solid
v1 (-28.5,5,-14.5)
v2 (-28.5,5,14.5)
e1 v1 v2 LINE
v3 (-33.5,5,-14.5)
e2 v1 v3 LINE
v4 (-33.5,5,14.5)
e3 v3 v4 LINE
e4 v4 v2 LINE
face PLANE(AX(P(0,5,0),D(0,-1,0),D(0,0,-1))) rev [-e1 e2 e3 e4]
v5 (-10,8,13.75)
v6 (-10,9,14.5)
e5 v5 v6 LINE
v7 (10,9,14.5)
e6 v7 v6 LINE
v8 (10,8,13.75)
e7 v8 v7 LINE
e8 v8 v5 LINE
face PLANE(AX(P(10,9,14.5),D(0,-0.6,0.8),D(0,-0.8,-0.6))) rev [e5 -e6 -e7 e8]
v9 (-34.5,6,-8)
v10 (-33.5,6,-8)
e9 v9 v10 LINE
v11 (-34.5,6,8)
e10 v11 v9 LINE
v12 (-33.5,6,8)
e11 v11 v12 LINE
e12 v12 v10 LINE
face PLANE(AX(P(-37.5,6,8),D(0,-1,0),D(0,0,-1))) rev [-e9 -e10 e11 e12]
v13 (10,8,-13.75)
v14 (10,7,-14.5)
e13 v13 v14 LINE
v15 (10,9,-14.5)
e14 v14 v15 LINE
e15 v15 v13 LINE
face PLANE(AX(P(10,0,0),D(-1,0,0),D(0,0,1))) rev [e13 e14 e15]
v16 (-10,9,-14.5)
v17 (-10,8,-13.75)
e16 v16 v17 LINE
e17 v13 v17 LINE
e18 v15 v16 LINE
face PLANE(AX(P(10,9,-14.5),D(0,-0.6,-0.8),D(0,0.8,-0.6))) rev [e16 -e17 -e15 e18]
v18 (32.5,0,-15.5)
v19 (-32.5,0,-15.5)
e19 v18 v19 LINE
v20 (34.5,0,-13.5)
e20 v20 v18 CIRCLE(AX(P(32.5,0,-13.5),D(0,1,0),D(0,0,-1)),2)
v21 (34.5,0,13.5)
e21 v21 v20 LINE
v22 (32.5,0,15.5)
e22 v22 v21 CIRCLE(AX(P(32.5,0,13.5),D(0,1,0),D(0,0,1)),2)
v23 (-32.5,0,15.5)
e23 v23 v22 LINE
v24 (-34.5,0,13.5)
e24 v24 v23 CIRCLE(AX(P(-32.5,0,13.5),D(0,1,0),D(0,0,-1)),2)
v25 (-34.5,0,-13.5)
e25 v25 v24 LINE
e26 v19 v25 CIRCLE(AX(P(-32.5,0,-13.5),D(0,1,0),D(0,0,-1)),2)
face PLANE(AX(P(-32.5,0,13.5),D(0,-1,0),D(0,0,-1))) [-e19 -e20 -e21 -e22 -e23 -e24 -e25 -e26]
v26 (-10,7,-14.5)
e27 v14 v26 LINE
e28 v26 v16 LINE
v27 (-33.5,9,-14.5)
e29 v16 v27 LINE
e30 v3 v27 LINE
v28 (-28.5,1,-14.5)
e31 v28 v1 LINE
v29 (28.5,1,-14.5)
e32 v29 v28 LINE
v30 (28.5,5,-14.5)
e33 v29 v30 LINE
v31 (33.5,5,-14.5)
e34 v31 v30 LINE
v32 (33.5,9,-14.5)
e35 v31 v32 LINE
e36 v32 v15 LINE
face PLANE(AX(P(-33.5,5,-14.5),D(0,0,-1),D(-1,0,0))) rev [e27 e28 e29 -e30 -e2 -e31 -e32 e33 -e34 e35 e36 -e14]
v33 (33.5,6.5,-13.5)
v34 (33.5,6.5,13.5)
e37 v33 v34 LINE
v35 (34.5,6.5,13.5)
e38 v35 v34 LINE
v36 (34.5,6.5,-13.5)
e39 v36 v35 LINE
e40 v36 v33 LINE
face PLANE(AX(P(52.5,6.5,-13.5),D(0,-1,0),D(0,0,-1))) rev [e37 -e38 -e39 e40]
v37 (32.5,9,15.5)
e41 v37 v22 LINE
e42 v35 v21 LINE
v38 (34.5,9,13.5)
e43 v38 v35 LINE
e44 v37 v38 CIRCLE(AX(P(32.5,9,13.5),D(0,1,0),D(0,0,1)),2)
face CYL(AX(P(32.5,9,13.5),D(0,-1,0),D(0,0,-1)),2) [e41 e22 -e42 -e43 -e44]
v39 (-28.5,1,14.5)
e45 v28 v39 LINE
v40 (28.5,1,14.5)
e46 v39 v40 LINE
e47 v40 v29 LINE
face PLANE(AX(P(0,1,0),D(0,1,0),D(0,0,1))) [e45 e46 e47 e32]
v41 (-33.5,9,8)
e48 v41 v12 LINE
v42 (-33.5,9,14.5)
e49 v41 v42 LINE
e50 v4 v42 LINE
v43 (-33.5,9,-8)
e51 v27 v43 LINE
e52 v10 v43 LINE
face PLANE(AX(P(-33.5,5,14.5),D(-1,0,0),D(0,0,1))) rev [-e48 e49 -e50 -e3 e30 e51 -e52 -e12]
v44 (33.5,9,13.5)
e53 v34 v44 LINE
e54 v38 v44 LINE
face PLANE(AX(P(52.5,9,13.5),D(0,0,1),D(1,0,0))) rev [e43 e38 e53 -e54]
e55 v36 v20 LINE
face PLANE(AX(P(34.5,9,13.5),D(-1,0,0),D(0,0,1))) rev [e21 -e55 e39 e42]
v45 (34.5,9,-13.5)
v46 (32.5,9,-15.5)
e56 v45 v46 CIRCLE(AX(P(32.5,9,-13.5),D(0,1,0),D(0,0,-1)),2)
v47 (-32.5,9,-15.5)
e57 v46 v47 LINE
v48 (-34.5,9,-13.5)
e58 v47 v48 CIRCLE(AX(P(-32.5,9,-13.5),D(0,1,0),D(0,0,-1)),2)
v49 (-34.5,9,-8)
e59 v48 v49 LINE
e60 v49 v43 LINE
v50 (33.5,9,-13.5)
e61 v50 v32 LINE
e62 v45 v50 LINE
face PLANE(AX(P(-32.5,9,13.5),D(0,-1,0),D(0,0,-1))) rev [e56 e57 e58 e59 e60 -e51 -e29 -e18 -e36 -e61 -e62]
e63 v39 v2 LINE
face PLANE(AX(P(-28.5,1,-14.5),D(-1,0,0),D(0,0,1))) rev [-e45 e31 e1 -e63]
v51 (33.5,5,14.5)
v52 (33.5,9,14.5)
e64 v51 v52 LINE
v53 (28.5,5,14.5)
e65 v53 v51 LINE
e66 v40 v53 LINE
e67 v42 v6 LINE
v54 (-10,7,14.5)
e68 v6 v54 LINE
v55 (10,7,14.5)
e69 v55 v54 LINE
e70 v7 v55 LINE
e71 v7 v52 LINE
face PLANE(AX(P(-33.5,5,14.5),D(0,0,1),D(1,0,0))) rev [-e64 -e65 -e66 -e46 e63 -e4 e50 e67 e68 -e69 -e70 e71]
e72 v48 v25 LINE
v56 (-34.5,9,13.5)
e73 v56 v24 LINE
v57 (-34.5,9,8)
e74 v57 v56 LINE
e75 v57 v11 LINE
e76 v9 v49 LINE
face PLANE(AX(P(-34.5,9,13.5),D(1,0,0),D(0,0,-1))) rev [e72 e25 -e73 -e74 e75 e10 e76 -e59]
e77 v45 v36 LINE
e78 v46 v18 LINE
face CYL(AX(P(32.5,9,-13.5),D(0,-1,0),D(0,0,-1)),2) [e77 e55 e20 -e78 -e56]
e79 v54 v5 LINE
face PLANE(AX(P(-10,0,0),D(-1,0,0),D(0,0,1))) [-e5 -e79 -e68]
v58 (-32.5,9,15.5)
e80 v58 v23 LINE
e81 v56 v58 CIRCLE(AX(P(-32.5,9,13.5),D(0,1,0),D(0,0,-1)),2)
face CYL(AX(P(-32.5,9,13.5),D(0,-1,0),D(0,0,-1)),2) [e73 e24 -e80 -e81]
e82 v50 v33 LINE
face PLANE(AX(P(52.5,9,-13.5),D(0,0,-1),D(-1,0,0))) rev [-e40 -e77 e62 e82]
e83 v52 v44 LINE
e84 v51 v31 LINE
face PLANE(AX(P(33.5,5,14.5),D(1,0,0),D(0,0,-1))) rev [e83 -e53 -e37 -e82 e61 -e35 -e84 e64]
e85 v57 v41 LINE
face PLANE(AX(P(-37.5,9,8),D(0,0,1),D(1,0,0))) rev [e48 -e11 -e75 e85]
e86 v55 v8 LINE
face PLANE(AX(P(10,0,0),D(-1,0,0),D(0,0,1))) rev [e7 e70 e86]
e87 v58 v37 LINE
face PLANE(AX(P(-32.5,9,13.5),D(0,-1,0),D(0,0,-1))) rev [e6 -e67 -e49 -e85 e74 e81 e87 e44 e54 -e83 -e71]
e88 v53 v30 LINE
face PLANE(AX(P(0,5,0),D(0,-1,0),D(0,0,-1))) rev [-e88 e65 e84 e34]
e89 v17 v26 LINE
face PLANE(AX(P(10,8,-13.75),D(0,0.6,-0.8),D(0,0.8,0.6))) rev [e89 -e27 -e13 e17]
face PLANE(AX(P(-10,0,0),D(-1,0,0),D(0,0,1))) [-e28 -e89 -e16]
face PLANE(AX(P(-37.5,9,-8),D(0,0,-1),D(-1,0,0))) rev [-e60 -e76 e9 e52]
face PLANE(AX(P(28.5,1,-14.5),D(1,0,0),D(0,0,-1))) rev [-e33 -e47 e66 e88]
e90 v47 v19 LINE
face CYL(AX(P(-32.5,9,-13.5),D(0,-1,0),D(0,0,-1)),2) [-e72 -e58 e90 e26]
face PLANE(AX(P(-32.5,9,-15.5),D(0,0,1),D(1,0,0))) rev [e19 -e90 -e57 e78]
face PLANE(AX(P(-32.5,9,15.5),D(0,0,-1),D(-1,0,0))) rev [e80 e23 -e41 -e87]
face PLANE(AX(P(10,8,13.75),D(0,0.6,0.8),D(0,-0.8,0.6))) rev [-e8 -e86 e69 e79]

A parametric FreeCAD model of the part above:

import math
import FreeCAD as App
import Part
import Sketcher
from FreeCAD import Vector

doc = App.newDocument("Part")
body = doc.addObject("PartDesign::Body", "Body")

# Sketch on XZ plane
sketch1 = body.newObject("Sketcher::SketchObject", "Sketch")
sketch1.AttachmentSupport = (doc.getObject("XZ_Plane"), [""])
sketch1.MapMode = "FlatFace"
sketch1.addGeometry(Part.LineSegment(Vector(-32.5, 15.5, 0), Vector(32.5, 15.5, 0)), False)
sketch1.addGeometry(Part.ArcOfCircle(Part.Circle(Vector(32.5, 13.5, 0), Vector(0, 0, 1), 2), math.radians(0), math.radians(90)), False)
sketch1.addGeometry(Part.LineSegment(Vector(34.5, 13.5, 0), Vector(34.5, -13.5, 0)), False)
sketch1.addGeometry(Part.ArcOfCircle(Part.Circle(Vector(32.5, -13.5, 0), Vector(0, 0, 1), 2), math.radians(-90), math.radians(0)), False)
sketch1.addGeometry(Part.LineSegment(Vector(32.5, -15.5, 0), Vector(-32.5, -15.5, 0)), False)
sketch1.addGeometry(Part.ArcOfCircle(Part.Circle(Vector(-32.5, -13.5, 0), Vector(0, 0, 1), 2), math.radians(-180), math.radians(-90)), False)
sketch1.addGeometry(Part.LineSegment(Vector(-34.5, -13.5, 0), Vector(-34.5, 13.5, 0)), False)
sketch1.addGeometry(Part.ArcOfCircle(Part.Circle(Vector(-32.5, 13.5, 0), Vector(0, 0, 1), 2), math.radians(90), math.radians(180)), False)
sketch1.addConstraint(Sketcher.Constraint("Tangent", 0, 2, 1, 2))
sketch1.addConstraint(Sketcher.Constraint("Tangent", 1, 1, 2, 1))
sketch1.addConstraint(Sketcher.Constraint("Tangent", 2, 2, 3, 2))
sketch1.addConstraint(Sketcher.Constraint("Tangent", 3, 1, 4, 1))
sketch1.addConstraint(Sketcher.Constraint("Tangent", 4, 2, 5, 2))
sketch1.addConstraint(Sketcher.Constraint("Tangent", 5, 1, 6, 1))
sketch1.addConstraint(Sketcher.Constraint("Tangent", 6, 2, 7, 2))
sketch1.addConstraint(Sketcher.Constraint("Tangent", 7, 1, 0, 1))
sketch1.addConstraint(Sketcher.Constraint("Horizontal", 0))
sketch1.addConstraint(Sketcher.Constraint("Vertical", 2))
sketch1.addConstraint(Sketcher.Constraint("Horizontal", 4))
sketch1.addConstraint(Sketcher.Constraint("Vertical", 6))
sketch1.addConstraint(Sketcher.Constraint("Equal", 1, 3))
sketch1.addConstraint(Sketcher.Constraint("Equal", 3, 5))
sketch1.addConstraint(Sketcher.Constraint("Equal", 5, 7))
sketch1.addConstraint(Sketcher.Constraint("Symmetric", 1, 3, 5, 3, -1, 1))
sketch1.addConstraint(Sketcher.Constraint("Radius", 1, 2.0))
sketch1.addConstraint(Sketcher.Constraint("DistanceX", 0, 1, 0, 2, 65.0))
sketch1.addConstraint(Sketcher.Constraint("DistanceY", 2, 2, 2, 1, 27.0))
pad1 = body.newObject("PartDesign::Pad", "Pad")
pad1.Profile = sketch1
pad1.Length = 9
pad1.Reversed = True

# Sketch on XZ plane
sketch2 = body.newObject("Sketcher::SketchObject", "Sketch001")
sketch2.AttachmentSupport = (doc.getObject("XZ_Plane"), [""])
sketch2.MapMode = "FlatFace"
sketch2.AttachmentOffset = App.Placement(Vector(0, 0, -9), App.Rotation())
sketch2.addGeometry(Part.LineSegment(Vector(-34, -14, 0), Vector(-34, 14, 0)), False)
sketch2.addGeometry(Part.LineSegment(Vector(-34, 14, 0), Vector(34, 14, 0)), False)
sketch2.addGeometry(Part.LineSegment(Vector(34, 14, 0), Vector(34, -14, 0)), False)
sketch2.addGeometry(Part.LineSegment(Vector(34, -14, 0), Vector(-34, -14, 0)), False)
sketch2.addConstraint(Sketcher.Constraint("Coincident", 0, 2, 1, 1))
sketch2.addConstraint(Sketcher.Constraint("Coincident", 1, 2, 2, 1))
sketch2.addConstraint(Sketcher.Constraint("Coincident", 2, 2, 3, 1))
sketch2.addConstraint(Sketcher.Constraint("Coincident", 3, 2, 0, 1))
sketch2.addConstraint(Sketcher.Constraint("Vertical", 0))
sketch2.addConstraint(Sketcher.Constraint("Horizontal", 1))
sketch2.addConstraint(Sketcher.Constraint("Vertical", 2))
sketch2.addConstraint(Sketcher.Constraint("Horizontal", 3))
sketch2.addConstraint(Sketcher.Constraint("Symmetric", 0, 2, 2, 2, -1, 1))
sketch2.addConstraint(Sketcher.Constraint("DistanceX", 1, 1, 1, 2, 67.0))
sketch2.addConstraint(Sketcher.Constraint("DistanceY", 0, 1, 0, 2, 29.0))
pocket1 = body.newObject("PartDesign::Pocket", "Pocket")
pocket1.Profile = sketch2
pocket1.Length = 4
pocket1.Reversed = True

# Sketch on YZ plane
sketch3 = body.newObject("Sketcher::SketchObject", "Sketch002")
sketch3.AttachmentSupport = (doc.getObject("YZ_Plane"), [""])
sketch3.MapMode = "FlatFace"
sketch3.AttachmentOffset = App.Placement(Vector(0, 0, 33.5), App.Rotation())
sketch3.addGeometry(Part.LineSegment(Vector(9, -13.5, 0), Vector(6.5, -13.5, 0)), False)
sketch3.addGeometry(Part.LineSegment(Vector(6.5, -13.5, 0), Vector(6.5, 13.5, 0)), False)
sketch3.addGeometry(Part.LineSegment(Vector(6.5, 13.5, 0), Vector(9, 13.5, 0)), False)
sketch3.addGeometry(Part.LineSegment(Vector(9, 13.5, 0), Vector(9, -13.5, 0)), False)
sketch3.addConstraint(Sketcher.Constraint("Coincident", 0, 2, 1, 1))
sketch3.addConstraint(Sketcher.Constraint("Coincident", 1, 2, 2, 1))
sketch3.addConstraint(Sketcher.Constraint("Coincident", 2, 2, 3, 1))
sketch3.addConstraint(Sketcher.Constraint("Coincident", 3, 2, 0, 1))
sketch3.addConstraint(Sketcher.Constraint("Horizontal", 0))
sketch3.addConstraint(Sketcher.Constraint("Vertical", 1))
sketch3.addConstraint(Sketcher.Constraint("Horizontal", 2))
sketch3.addConstraint(Sketcher.Constraint("Vertical", 3))
sketch3.addConstraint(Sketcher.Constraint("DistanceY", 1, 1, 1, 2, 27.0))
sketch3.addConstraint(Sketcher.Constraint("DistanceX", 0, 2, 0, 1, 2.5))
sketch3.addConstraint(Sketcher.Constraint("DistanceX", -1, 1, 2, 2, 9.0))
sketch3.addConstraint(Sketcher.Constraint("DistanceY", 0, 2, -1, 1, 13.5))
pocket2 = body.newObject("PartDesign::Pocket", "Pocket001")
pocket2.Profile = sketch3
pocket2.Length = 19
pocket2.Reversed = True

# Sketch on XZ plane
sketch4 = body.newObject("Sketcher::SketchObject", "Sketch003")
sketch4.AttachmentSupport = (doc.getObject("XZ_Plane"), [""])
sketch4.MapMode = "FlatFace"
sketch4.AttachmentOffset = App.Placement(Vector(0, 0, -5), App.Rotation())
sketch4.addGeometry(Part.LineSegment(Vector(-28, -14, 0), Vector(-28, 14, 0)), False)
sketch4.addGeometry(Part.LineSegment(Vector(-28, 14, 0), Vector(28, 14, 0)), False)
sketch4.addGeometry(Part.LineSegment(Vector(28, 14, 0), Vector(28, -14, 0)), False)
sketch4.addGeometry(Part.LineSegment(Vector(28, -14, 0), Vector(-28, -14, 0)), False)
sketch4.addConstraint(Sketcher.Constraint("Coincident", 0, 2, 1, 1))
sketch4.addConstraint(Sketcher.Constraint("Coincident", 1, 2, 2, 1))
sketch4.addConstraint(Sketcher.Constraint("Coincident", 2, 2, 3, 1))
sketch4.addConstraint(Sketcher.Constraint("Coincident", 3, 2, 0, 1))
sketch4.addConstraint(Sketcher.Constraint("Vertical", 0))
sketch4.addConstraint(Sketcher.Constraint("Horizontal", 1))
sketch4.addConstraint(Sketcher.Constraint("Vertical", 2))
sketch4.addConstraint(Sketcher.Constraint("Horizontal", 3))
sketch4.addConstraint(Sketcher.Constraint("Symmetric", 0, 2, 2, 2, -1, 1))
sketch4.addConstraint(Sketcher.Constraint("DistanceX", 1, 1, 1, 2, 57.0))
sketch4.addConstraint(Sketcher.Constraint("DistanceY", 0, 1, 0, 2, 29.0))
pocket3 = body.newObject("PartDesign::Pocket", "Pocket002")
pocket3.Profile = sketch4
pocket3.Length = 4
pocket3.Reversed = True

# Sketch on YZ plane
sketch5 = body.newObject("Sketcher::SketchObject", "Sketch004")
sketch5.AttachmentSupport = (doc.getObject("YZ_Plane"), [""])
sketch5.MapMode = "FlatFace"
sketch5.AttachmentOffset = App.Placement(Vector(0, 0, -33.5), App.Rotation())
sketch5.addGeometry(Part.LineSegment(Vector(9, 8, 0), Vector(6, 8, 0)), False)
sketch5.addGeometry(Part.LineSegment(Vector(6, 8, 0), Vector(6, -8, 0)), False)
sketch5.addGeometry(Part.LineSegment(Vector(6, -8, 0), Vector(9, -8, 0)), False)
sketch5.addGeometry(Part.LineSegment(Vector(9, -8, 0), Vector(9, 8, 0)), False)
sketch5.addConstraint(Sketcher.Constraint("Coincident", 0, 2, 1, 1))
sketch5.addConstraint(Sketcher.Constraint("Coincident", 1, 2, 2, 1))
sketch5.addConstraint(Sketcher.Constraint("Coincident", 2, 2, 3, 1))
sketch5.addConstraint(Sketcher.Constraint("Coincident", 3, 2, 0, 1))
sketch5.addConstraint(Sketcher.Constraint("Horizontal", 0))
sketch5.addConstraint(Sketcher.Constraint("Vertical", 1))
sketch5.addConstraint(Sketcher.Constraint("Horizontal", 2))
sketch5.addConstraint(Sketcher.Constraint("Vertical", 3))
sketch5.addConstraint(Sketcher.Constraint("DistanceX", 0, 2, 0, 1, 3.0))
sketch5.addConstraint(Sketcher.Constraint("DistanceY", 1, 2, 1, 1, 16.0))
sketch5.addConstraint(Sketcher.Constraint("DistanceX", -1, 1, 0, 2, 6.0))
sketch5.addConstraint(Sketcher.Constraint("DistanceY", -1, 1, 0, 2, 8.0))
pocket4 = body.newObject("PartDesign::Pocket", "Pocket003")
pocket4.Profile = sketch5
pocket4.Length = 4

# Sketch on YZ plane
sketch6 = body.newObject("Sketcher::SketchObject", "Sketch005")
sketch6.AttachmentSupport = (doc.getObject("YZ_Plane"), [""])
sketch6.MapMode = "FlatFace"
sketch6.addGeometry(Part.LineSegment(Vector(7, -14.5, 0), Vector(9, -14.5, 0)), False)
sketch6.addGeometry(Part.LineSegment(Vector(9, -14.5, 0), Vector(8, -13.8, 0)), False)
sketch6.addGeometry(Part.LineSegment(Vector(8, -13.8, 0), Vector(7, -14.5, 0)), False)
sketch6.addGeometry(Part.LineSegment(Vector(7, 14.5, 0), Vector(8, 13.8, 0)), False)
sketch6.addGeometry(Part.LineSegment(Vector(8, 13.8, 0), Vector(9, 14.5, 0)), False)
sketch6.addGeometry(Part.LineSegment(Vector(9, 14.5, 0), Vector(7, 14.5, 0)), False)
sketch6.addConstraint(Sketcher.Constraint("Coincident", 0, 2, 1, 1))
sketch6.addConstraint(Sketcher.Constraint("Coincident", 1, 2, 2, 1))
sketch6.addConstraint(Sketcher.Constraint("Coincident", 2, 2, 0, 1))
sketch6.addConstraint(Sketcher.Constraint("Coincident", 3, 2, 4, 1))
sketch6.addConstraint(Sketcher.Constraint("Coincident", 4, 2, 5, 1))
sketch6.addConstraint(Sketcher.Constraint("Coincident", 5, 2, 3, 1))
sketch6.addConstraint(Sketcher.Constraint("Horizontal", 0))
sketch6.addConstraint(Sketcher.Constraint("Horizontal", 5))
sketch6.addConstraint(Sketcher.Constraint("Symmetric", 1, 2, 3, 2, -1))
sketch6.addConstraint(Sketcher.Constraint("Symmetric", 0, 2, 4, 2, -1))
sketch6.addConstraint(Sketcher.Constraint("Parallel", 1, 3))
sketch6.addConstraint(Sketcher.Constraint("Parallel", 2, 4))
sketch6.addConstraint(Sketcher.Constraint("DistanceX", 0, 1, 0, 2, 2.0))
sketch6.addConstraint(Sketcher.Constraint("DistanceX", -1, 1, 0, 2, 9.0))
sketch6.addConstraint(Sketcher.Constraint("DistanceY", 0, 2, 4, 2, 29.0))
sketch6.addConstraint(Sketcher.Constraint("DistanceY", 1, 2, 3, 2, 27.5))
pad2 = body.newObject("PartDesign::Pad", "Pad001")
pad2.Profile = sketch6
pad2.Length = 20
pad2.Midplane = True

doc.recompute()
